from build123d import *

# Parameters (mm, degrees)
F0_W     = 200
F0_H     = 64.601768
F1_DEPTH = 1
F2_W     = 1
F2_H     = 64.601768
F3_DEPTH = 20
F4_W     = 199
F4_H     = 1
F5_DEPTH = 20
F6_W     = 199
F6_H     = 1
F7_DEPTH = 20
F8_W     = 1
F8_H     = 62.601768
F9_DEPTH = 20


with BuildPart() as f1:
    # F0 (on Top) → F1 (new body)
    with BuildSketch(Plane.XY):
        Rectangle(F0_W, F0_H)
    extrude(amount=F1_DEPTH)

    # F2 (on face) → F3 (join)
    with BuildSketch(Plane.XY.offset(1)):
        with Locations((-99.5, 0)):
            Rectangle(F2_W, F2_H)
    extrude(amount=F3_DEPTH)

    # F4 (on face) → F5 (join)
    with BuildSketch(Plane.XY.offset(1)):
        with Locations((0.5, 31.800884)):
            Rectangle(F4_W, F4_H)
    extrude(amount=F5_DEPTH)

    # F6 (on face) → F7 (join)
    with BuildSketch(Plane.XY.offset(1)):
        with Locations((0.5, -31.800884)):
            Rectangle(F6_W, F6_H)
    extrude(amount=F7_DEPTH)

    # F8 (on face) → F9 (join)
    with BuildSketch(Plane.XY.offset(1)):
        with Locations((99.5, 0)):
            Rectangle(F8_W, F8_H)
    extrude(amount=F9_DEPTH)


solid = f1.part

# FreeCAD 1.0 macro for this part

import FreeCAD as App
import Part
import Sketcher
from FreeCAD import Vector

doc = App.newDocument("Part")
body = doc.addObject("PartDesign::Body", "Body")

sketch1 = body.newObject("Sketcher::SketchObject", "Sketch")
sketch1.AttachmentSupport = (doc.getObject("XY_Plane"), [""])
sketch1.MapMode = "FlatFace"
sketch1.addGeometry(Part.LineSegment(Vector(-100, 32, 0), Vector(-100, -32, 0)), False)
sketch1.addGeometry(Part.LineSegment(Vector(-100, -32, 0), Vector(100, -32, 0)), False)
sketch1.addGeometry(Part.LineSegment(Vector(100, -32, 0), Vector(100, 32, 0)), False)
sketch1.addGeometry(Part.LineSegment(Vector(100, 32, 0), Vector(-100, 32, 0)), False)
sketch1.addConstraint(Sketcher.Constraint("Coincident", 0, 2, 1, 1))
sketch1.addConstraint(Sketcher.Constraint("Coincident", 1, 2, 2, 1))
sketch1.addConstraint(Sketcher.Constraint("Coincident", 2, 2, 3, 1))
sketch1.addConstraint(Sketcher.Constraint("Coincident", 3, 2, 0, 1))
sketch1.addConstraint(Sketcher.Constraint("Vertical", 0))
sketch1.addConstraint(Sketcher.Constraint("Horizontal", 1))
sketch1.addConstraint(Sketcher.Constraint("Vertical", 2))
sketch1.addConstraint(Sketcher.Constraint("Horizontal", 3))
sketch1.addConstraint(Sketcher.Constraint("Symmetric", 0, 2, 2, 2, -1, 1))
sketch1.addConstraint(Sketcher.Constraint("DistanceX", 1, 1, 1, 2, 200.0))
sketch1.addConstraint(Sketcher.Constraint("DistanceY", 0, 2, 0, 1, 64.601768))
pad1 = body.newObject("PartDesign::Pad", "Pad")
pad1.Profile = sketch1
pad1.Length = 1

sketch2 = body.newObject("Sketcher::SketchObject", "Sketch001")
sketch2.AttachmentSupport = (doc.getObject("XY_Plane"), [""])
sketch2.MapMode = "FlatFace"
sketch2.AttachmentOffset = App.Placement(Vector(0, 0, 1), App.Rotation())
sketch2.addGeometry(Part.LineSegment(Vector(-100, 32.3, 0), Vector(-100, -32.3, 0)), False)
sketch2.addGeometry(Part.LineSegment(Vector(-100, -32.3, 0), Vector(-99, -32.3, 0)), False)
sketch2.addGeometry(Part.LineSegment(Vector(-99, -32.3, 0), Vector(-99, 32.3, 0)), False)
sketch2.addGeometry(Part.LineSegment(Vector(-99, 32.3, 0), Vector(-100, 32.3, 0)), False)
sketch2.addConstraint(Sketcher.Constraint("Coincident", 0, 2, 1, 1))
sketch2.addConstraint(Sketcher.Constraint("Coincident", 1, 2, 2, 1))
sketch2.addConstraint(Sketcher.Constraint("Coincident", 2, 2, 3, 1))
sketch2.addConstraint(Sketcher.Constraint("Coincident", 3, 2, 0, 1))
sketch2.addConstraint(Sketcher.Constraint("Vertical", 0))
sketch2.addConstraint(Sketcher.Constraint("Horizontal", 1))
sketch2.addConstraint(Sketcher.Constraint("Vertical", 2))
sketch2.addConstraint(Sketcher.Constraint("Horizontal", 3))
sketch2.addConstraint(Sketcher.Constraint("DistanceX", 1, 1, 1, 2, 1.0))
sketch2.addConstraint(Sketcher.Constraint("DistanceX", 0, 2, -1, 1, 100.0))
sketch2.addConstraint(Sketcher.Constraint("DistanceY", 0, 2, 0, 1, 64.601768))
sketch2.addConstraint(Sketcher.Constraint("DistanceY", 0, 2, -1, 1, 32.300884))
pad2 = body.newObject("PartDesign::Pad", "Pad001")
pad2.Profile = sketch2
pad2.Length = 20

sketch3 = body.newObject("Sketcher::SketchObject", "Sketch002")
sketch3.AttachmentSupport = (doc.getObject("XY_Plane"), [""])
sketch3.MapMode = "FlatFace"
sketch3.AttachmentOffset = App.Placement(Vector(0, 0, 1), App.Rotation())
sketch3.addGeometry(Part.LineSegment(Vector(-99, 32.3, 0), Vector(-99, 31.3, 0)), False)
sketch3.addGeometry(Part.LineSegment(Vector(-99, 31.3, 0), Vector(100, 31.3, 0)), False)
sketch3.addGeometry(Part.LineSegment(Vector(100, 31.3, 0), Vector(100, 32.3, 0)), False)
sketch3.addGeometry(Part.LineSegment(Vector(100, 32.3, 0), Vector(-99, 32.3, 0)), False)
sketch3.addConstraint(Sketcher.Constraint("Coincident", 0, 2, 1, 1))
sketch3.addConstraint(Sketcher.Constraint("Coincident", 1, 2, 2, 1))
sketch3.addConstraint(Sketcher.Constraint("Coincident", 2, 2, 3, 1))
sketch3.addConstraint(Sketcher.Constraint("Coincident", 3, 2, 0, 1))
sketch3.addConstraint(Sketcher.Constraint("Vertical", 0))
sketch3.addConstraint(Sketcher.Constraint("Horizontal", 1))
sketch3.addConstraint(Sketcher.Constraint("Vertical", 2))
sketch3.addConstraint(Sketcher.Constraint("Horizontal", 3))
sketch3.addConstraint(Sketcher.Constraint("DistanceX", 1, 1, 1, 2, 199.0))
sketch3.addConstraint(Sketcher.Constraint("DistanceY", 0, 2, 0, 1, 1.0))
sketch3.addConstraint(Sketcher.Constraint("DistanceX", 0, 2, -1, 1, 99.0))
sketch3.addConstraint(Sketcher.Constraint("DistanceY", -1, 1, 0, 2, 31.300884))
pad3 = body.newObject("PartDesign::Pad", "Pad002")
pad3.Profile = sketch3
pad3.Length = 20

sketch4 = body.newObject("Sketcher::SketchObject", "Sketch003")
sketch4.AttachmentSupport = (doc.getObject("XY_Plane"), [""])
sketch4.MapMode = "FlatFace"
sketch4.AttachmentOffset = App.Placement(Vector(0, 0, 1), App.Rotation())
sketch4.addGeometry(Part.LineSegment(Vector(-99, -31.3, 0), Vector(-99, -32.3, 0)), False)
sketch4.addGeometry(Part.LineSegment(Vector(-99, -32.3, 0), Vector(100, -32.3, 0)), False)
sketch4.addGeometry(Part.LineSegment(Vector(100, -32.3, 0), Vector(100, -31.3, 0)), False)
sketch4.addGeometry(Part.LineSegment(Vector(100, -31.3, 0), Vector(-99, -31.3, 0)), False)
sketch4.addConstraint(Sketcher.Constraint("Coincident", 0, 2, 1, 1))
sketch4.addConstraint(Sketcher.Constraint("Coincident", 1, 2, 2, 1))
sketch4.addConstraint(Sketcher.Constraint("Coincident", 2, 2, 3, 1))
sketch4.addConstraint(Sketcher.Constraint("Coincident", 3, 2, 0, 1))
sketch4.addConstraint(Sketcher.Constraint("Vertical", 0))
sketch4.addConstraint(Sketcher.Constraint("Horizontal", 1))
sketch4.addConstraint(Sketcher.Constraint("Vertical", 2))
sketch4.addConstraint(Sketcher.Constraint("Horizontal", 3))
sketch4.addConstraint(Sketcher.Constraint("DistanceX", 1, 1, 1, 2, 199.0))
sketch4.addConstraint(Sketcher.Constraint("DistanceY", 0, 2, 0, 1, 1.0))
sketch4.addConstraint(Sketcher.Constraint("DistanceX", 0, 2, -1, 1, 99.0))
sketch4.addConstraint(Sketcher.Constraint("DistanceY", 0, 2, -1, 1, 32.300884))
pad4 = body.newObject("PartDesign::Pad", "Pad003")
pad4.Profile = sketch4
pad4.Length = 20

sketch5 = body.newObject("Sketcher::SketchObject", "Sketch004")
sketch5.AttachmentSupport = (doc.getObject("XY_Plane"), [""])
sketch5.MapMode = "FlatFace"
sketch5.AttachmentOffset = App.Placement(Vector(0, 0, 1), App.Rotation())
sketch5.addGeometry(Part.LineSegment(Vector(99, 31.3, 0), Vector(99, -31.3, 0)), False)
sketch5.addGeometry(Part.LineSegment(Vector(99, -31.3, 0), Vector(100, -31.3, 0)), False)
sketch5.addGeometry(Part.LineSegment(Vector(100, -31.3, 0), Vector(100, 31.3, 0)), False)
sketch5.addGeometry(Part.LineSegment(Vector(100, 31.3, 0), Vector(99, 31.3, 0)), False)
sketch5.addConstraint(Sketcher.Constraint("Coincident", 0, 2, 1, 1))
sketch5.addConstraint(Sketcher.Constraint("Coincident", 1, 2, 2, 1))
sketch5.addConstraint(Sketcher.Constraint("Coincident", 2, 2, 3, 1))
sketch5.addConstraint(Sketcher.Constraint("Coincident", 3, 2, 0, 1))
sketch5.addConstraint(Sketcher.Constraint("Vertical", 0))
sketch5.addConstraint(Sketcher.Constraint("Horizontal", 1))
sketch5.addConstraint(Sketcher.Constraint("Vertical", 2))
sketch5.addConstraint(Sketcher.Constraint("Horizontal", 3))
sketch5.addConstraint(Sketcher.Constraint("DistanceX", 1, 1, 1, 2, 1.0))
sketch5.addConstraint(Sketcher.Constraint("DistanceX", -1, 1, 0, 2, 99.0))
sketch5.addConstraint(Sketcher.Constraint("DistanceY", 0, 2, 0, 1, 62.601768))
sketch5.addConstraint(Sketcher.Constraint("DistanceY", 0, 2, -1, 1, 31.300884))
pad5 = body.newObject("PartDesign::Pad", "Pad004")
pad5.Profile = sketch5
pad5.Length = 20

doc.recompute()
